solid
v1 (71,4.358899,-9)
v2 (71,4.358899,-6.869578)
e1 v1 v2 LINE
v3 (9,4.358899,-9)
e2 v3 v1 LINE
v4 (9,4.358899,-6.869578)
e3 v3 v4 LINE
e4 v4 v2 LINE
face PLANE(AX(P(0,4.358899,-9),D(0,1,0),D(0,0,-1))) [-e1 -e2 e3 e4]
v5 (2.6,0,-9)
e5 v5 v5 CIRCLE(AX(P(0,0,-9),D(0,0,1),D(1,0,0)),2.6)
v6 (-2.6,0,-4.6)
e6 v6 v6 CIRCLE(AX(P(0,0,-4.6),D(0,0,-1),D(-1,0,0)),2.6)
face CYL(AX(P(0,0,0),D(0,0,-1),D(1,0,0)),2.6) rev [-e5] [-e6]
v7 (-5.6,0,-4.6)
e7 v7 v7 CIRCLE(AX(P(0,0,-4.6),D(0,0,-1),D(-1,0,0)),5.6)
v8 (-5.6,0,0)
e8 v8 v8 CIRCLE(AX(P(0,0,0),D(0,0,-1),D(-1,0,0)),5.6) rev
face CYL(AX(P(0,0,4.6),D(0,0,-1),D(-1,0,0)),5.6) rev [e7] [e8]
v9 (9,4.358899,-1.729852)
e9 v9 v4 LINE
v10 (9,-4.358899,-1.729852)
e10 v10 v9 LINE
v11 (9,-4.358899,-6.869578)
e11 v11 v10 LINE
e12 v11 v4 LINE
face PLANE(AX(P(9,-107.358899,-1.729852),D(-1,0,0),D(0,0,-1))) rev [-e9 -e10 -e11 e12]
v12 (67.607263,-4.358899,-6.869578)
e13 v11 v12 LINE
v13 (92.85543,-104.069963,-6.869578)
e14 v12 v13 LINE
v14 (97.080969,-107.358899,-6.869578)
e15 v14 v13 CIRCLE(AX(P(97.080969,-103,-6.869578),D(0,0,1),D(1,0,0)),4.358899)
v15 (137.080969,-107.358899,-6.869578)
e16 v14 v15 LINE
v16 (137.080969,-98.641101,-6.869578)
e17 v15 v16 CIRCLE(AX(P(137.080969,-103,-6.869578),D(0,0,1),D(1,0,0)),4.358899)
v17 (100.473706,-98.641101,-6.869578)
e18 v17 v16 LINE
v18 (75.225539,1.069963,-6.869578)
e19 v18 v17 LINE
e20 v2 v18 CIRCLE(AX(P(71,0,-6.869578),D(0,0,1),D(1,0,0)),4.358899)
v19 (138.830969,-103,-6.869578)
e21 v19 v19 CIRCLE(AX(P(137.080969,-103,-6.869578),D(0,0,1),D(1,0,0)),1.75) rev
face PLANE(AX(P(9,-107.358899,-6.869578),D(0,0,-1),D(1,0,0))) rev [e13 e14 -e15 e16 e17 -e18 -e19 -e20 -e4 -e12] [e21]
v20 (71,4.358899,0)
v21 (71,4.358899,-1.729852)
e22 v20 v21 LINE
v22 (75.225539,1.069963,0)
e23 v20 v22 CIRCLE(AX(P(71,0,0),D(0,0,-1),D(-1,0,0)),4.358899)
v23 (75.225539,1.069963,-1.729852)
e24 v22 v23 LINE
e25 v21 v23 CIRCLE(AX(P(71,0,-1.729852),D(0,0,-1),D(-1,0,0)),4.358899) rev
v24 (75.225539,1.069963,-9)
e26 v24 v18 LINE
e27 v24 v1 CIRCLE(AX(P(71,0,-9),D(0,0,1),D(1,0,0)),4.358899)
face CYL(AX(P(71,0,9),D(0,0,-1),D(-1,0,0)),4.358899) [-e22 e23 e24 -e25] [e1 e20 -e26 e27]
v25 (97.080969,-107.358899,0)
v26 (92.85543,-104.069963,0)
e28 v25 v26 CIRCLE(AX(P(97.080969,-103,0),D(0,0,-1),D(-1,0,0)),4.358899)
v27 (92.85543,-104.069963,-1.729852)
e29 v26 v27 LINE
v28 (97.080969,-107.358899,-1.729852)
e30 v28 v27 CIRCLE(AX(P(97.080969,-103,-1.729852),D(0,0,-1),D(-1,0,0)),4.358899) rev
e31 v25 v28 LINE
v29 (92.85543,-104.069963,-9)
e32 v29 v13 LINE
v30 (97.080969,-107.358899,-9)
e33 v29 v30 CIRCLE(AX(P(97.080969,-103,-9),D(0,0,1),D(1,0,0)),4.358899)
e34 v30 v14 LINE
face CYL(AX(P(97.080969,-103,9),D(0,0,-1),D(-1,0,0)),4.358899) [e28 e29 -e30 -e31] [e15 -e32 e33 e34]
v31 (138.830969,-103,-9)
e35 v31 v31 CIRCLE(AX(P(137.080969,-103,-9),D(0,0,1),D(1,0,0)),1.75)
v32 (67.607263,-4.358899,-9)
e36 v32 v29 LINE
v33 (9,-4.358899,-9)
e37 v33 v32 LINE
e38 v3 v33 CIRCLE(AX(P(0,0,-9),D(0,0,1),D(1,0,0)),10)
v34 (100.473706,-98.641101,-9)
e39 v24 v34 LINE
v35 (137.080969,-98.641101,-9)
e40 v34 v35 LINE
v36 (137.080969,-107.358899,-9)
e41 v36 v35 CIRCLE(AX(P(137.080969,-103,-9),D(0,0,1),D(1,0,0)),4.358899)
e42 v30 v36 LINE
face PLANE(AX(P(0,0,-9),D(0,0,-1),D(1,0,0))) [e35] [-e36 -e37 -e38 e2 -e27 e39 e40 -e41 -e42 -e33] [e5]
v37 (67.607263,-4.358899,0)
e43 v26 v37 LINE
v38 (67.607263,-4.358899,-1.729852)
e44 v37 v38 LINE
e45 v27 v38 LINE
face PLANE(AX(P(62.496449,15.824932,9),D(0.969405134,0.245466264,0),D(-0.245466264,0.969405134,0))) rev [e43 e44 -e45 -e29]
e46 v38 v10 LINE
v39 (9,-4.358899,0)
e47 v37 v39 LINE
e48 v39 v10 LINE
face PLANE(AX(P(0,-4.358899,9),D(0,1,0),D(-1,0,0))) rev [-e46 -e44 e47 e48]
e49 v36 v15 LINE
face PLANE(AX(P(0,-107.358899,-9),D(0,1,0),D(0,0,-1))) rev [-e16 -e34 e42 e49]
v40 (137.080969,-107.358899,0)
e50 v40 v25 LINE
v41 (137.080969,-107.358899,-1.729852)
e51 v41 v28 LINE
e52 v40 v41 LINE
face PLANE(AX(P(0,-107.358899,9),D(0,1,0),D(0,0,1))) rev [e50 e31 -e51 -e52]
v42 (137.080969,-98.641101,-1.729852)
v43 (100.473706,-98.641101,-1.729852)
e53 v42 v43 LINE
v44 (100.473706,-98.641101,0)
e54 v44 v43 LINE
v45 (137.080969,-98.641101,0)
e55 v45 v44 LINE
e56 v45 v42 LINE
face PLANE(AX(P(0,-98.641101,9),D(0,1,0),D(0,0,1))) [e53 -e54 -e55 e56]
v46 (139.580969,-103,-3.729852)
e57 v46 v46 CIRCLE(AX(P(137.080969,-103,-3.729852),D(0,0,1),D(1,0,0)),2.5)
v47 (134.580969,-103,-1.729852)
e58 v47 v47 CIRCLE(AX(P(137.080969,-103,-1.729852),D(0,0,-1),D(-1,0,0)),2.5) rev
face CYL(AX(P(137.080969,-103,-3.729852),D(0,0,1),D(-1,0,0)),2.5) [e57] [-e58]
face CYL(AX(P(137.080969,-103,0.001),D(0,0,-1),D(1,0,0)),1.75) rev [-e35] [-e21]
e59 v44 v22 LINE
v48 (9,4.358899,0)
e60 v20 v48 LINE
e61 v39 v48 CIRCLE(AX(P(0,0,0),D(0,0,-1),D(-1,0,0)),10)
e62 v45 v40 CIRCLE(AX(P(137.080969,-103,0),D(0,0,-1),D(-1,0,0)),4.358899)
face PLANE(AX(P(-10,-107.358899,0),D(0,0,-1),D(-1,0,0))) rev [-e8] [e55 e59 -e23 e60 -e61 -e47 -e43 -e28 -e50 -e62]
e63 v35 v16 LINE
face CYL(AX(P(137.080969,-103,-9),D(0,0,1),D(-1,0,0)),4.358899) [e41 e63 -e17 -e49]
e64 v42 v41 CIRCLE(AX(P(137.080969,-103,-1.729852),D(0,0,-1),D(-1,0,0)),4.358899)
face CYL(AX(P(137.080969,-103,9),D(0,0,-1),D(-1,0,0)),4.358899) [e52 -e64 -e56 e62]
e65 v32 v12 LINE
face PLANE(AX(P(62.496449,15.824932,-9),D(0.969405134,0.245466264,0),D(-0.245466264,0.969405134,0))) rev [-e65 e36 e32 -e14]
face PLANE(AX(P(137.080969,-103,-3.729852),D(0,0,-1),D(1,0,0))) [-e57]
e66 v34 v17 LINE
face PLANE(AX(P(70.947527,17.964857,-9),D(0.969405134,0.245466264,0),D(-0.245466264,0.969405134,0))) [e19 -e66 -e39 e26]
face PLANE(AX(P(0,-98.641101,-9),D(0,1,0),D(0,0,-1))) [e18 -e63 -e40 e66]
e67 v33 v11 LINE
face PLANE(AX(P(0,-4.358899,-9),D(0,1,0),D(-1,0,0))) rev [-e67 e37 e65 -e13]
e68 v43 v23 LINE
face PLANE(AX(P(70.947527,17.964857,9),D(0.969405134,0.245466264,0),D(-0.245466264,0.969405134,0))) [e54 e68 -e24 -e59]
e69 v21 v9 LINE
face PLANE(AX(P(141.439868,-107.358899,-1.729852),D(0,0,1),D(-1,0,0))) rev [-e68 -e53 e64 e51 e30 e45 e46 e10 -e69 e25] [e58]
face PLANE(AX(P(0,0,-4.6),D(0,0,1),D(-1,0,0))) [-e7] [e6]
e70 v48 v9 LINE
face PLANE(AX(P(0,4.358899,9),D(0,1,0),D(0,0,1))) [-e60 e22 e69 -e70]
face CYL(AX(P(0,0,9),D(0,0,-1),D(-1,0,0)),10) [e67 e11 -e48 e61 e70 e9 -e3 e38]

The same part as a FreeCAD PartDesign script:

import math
import FreeCAD as App
import Part
import Sketcher


def add_polygon(sketch, points):
    """Adds a closed chain of lines whose ends are joined by coincident constraints."""
    first, n = sketch.GeometryCount, len(points)
    for a, b in zip(points, points[1:] + points[:1]):
        sketch.addGeometry(Part.LineSegment(App.Vector(*a, 0), App.Vector(*b, 0)), False)
    for i in range(n):
        sketch.addConstraint(Sketcher.Constraint("Coincident", first + i, 2, first + (i + 1) % n, 1))

doc = App.newDocument("Part")
params = doc.addObject("Spreadsheet::Sheet", "Params")
for row, (alias, value) in enumerate([
    ("sketch1_radius", "10 mm"),
    ("sketch1_width", "40 mm"),
    ("sketch1_width2", "62 mm"),
    ("pad1_length", "9 mm"),
    ("sketch2_diameter", "11.2 mm"),
    ("pocket1_length", "4.6 mm"),
    ("sketch3_diameter", "5.2 mm"),
    ("pad2_length", "7.270148 mm"),
    ("pad3_length", "7.270148 mm"),
    ("sketch7_diameter", "5 mm"),
    ("pad4_length", "2 mm"),
    ("sketch8_diameter", "3.5 mm"),
    ("sketch9_height", "9 mm"),
], start=1):
    params.set(f"A{row}", alias)
    params.set(f"B{row}", "=" + value)
    params.setAlias(f"B{row}", alias)

body = doc.addObject("PartDesign::Body", "Body")

# Sketch on XY plane
sketch1 = body.newObject("Sketcher::SketchObject", "Sketch")
sketch1.AttachmentSupport = (doc.getObject("XY_Plane"), [""])
sketch1.MapMode = "FlatFace"
sketch1.addGeometry(Part.LineSegment(App.Vector(97.1, -107.4, 0), App.Vector(137.1, -107.4, 0)), False)
sketch1.addGeometry(Part.ArcOfCircle(Part.Circle(App.Vector(137.1, -103, 0), App.Vector(0, 0, 1), 4.4), math.radians(-90), math.radians(90)), False)
sketch1.addGeometry(Part.LineSegment(App.Vector(137.1, -98.6, 0), App.Vector(100.5, -98.6, 0)), False)
sketch1.addGeometry(Part.LineSegment(App.Vector(100.5, -98.6, 0), App.Vector(75.2, 1.1, 0)), False)
sketch1.addGeometry(Part.ArcOfCircle(Part.Circle(App.Vector(71, 0, 0), App.Vector(0, 0, 1), 4.4), math.radians(14), math.radians(90)), False)
sketch1.addGeometry(Part.LineSegment(App.Vector(71, 4.4, 0), App.Vector(9, 4.4, 0)), False)
sketch1.addGeometry(Part.ArcOfCircle(Part.Circle(App.Vector(0, 0, 0), App.Vector(0, 0, 1), 10), math.radians(26), math.radians(334)), False)
sketch1.addGeometry(Part.LineSegment(App.Vector(9, -4.4, 0), App.Vector(67.6, -4.4, 0)), False)
sketch1.addGeometry(Part.LineSegment(App.Vector(67.6, -4.4, 0), App.Vector(92.9, -104.1, 0)), False)
sketch1.addGeometry(Part.ArcOfCircle(Part.Circle(App.Vector(97.1, -103, 0), App.Vector(0, 0, 1), 4.4), math.radians(-166), math.radians(-90)), False)
sketch1.addConstraint(Sketcher.Constraint("Tangent", 0, 2, 1, 1))
sketch1.addConstraint(Sketcher.Constraint("Tangent", 1, 2, 2, 1))
sketch1.addConstraint(Sketcher.Constraint("Coincident", 2, 2, 3, 1))
sketch1.addConstraint(Sketcher.Constraint("Tangent", 3, 2, 4, 1))
sketch1.addConstraint(Sketcher.Constraint("Tangent", 4, 2, 5, 1))
sketch1.addConstraint(Sketcher.Constraint("Coincident", 5, 2, 6, 1))
sketch1.addConstraint(Sketcher.Constraint("Coincident", 6, 2, 7, 1))
sketch1.addConstraint(Sketcher.Constraint("Coincident", 7, 2, 8, 1))
sketch1.addConstraint(Sketcher.Constraint("Tangent", 8, 2, 9, 1))
sketch1.addConstraint(Sketcher.Constraint("Tangent", 9, 2, 0, 1))
sketch1.addConstraint(Sketcher.Constraint("Horizontal", 0))
sketch1.addConstraint(Sketcher.Constraint("Horizontal", 2))
sketch1.addConstraint(Sketcher.Constraint("Horizontal", 5))
sketch1.addConstraint(Sketcher.Constraint("Horizontal", 7))
sketch1.addConstraint(Sketcher.Constraint("Coincident", 6, 3, -1, 1))
sketch1.addConstraint(Sketcher.Constraint("Equal", 1, 4))
sketch1.addConstraint(Sketcher.Constraint("Equal", 4, 9))
sketch1.addConstraint(Sketcher.Constraint("PointOnObject", 4, 3, -1))
sketch1.addConstraint(Sketcher.Constraint("Parallel", 3, 8))
sketch1.addConstraint(Sketcher.Constraint("Vertical", 5, 2, 6, 2))
sketch1.addConstraint(Sketcher.Constraint("Radius", 6, 10.0))
sketch1.addConstraint(Sketcher.Constraint("DistanceX", 0, 1, 0, 2, 40.0))
sketch1.addConstraint(Sketcher.Constraint("DistanceX", 5, 2, 5, 1, 62.0))
sketch1.addConstraint(Sketcher.Constraint("DistanceY", 1, 3, -1, 1, 103.0))
sketch1.addConstraint(Sketcher.Constraint("DistanceX", -1, 1, 4, 3, 71.0))
sketch1.addConstraint(Sketcher.Constraint("Distance", 3, 102.85799))
sketch1.addConstraint(Sketcher.Constraint("DistanceX", 2, 2, 2, 1, 36.607263))
sketch1.setExpression("Constraints[20]", "Params.sketch1_radius")
sketch1.setExpression("Constraints[21]", "Params.sketch1_width")
sketch1.setExpression("Constraints[22]", "Params.sketch1_width2")
pad1 = body.newObject("PartDesign::Pad", "Pad")
pad1.Profile = sketch1
pad1.setExpression("Length", "Params.pad1_length")

# Sketch on XY plane
sketch2 = body.newObject("Sketcher::SketchObject", "Sketch001")
sketch2.AttachmentSupport = (doc.getObject("XY_Plane"), [""])
sketch2.MapMode = "FlatFace"
sketch2.addGeometry(Part.Circle(App.Vector(0, 0, 0), App.Vector(0, 0, 1), 6), False)
sketch2.addConstraint(Sketcher.Constraint("Coincident", 0, 3, -1, 1))
sketch2.addConstraint(Sketcher.Constraint("Diameter", 0, 11.2))
sketch2.setExpression("Constraints[1]", "Params.sketch2_diameter")
pocket1 = body.newObject("PartDesign::Pocket", "Pocket")
pocket1.Profile = sketch2
pocket1.setExpression("Length", "Params.pocket1_length")
pocket1.Reversed = True

# Sketch on XY plane
sketch3 = body.newObject("Sketcher::SketchObject", "Sketch002")
sketch3.AttachmentSupport = (doc.getObject("XY_Plane"), [""])
sketch3.MapMode = "FlatFace"
sketch3.AttachmentOffset = App.Placement(App.Vector(0, 0, 9), App.Rotation())
sketch3.addGeometry(Part.Circle(App.Vector(0, 0, 0), App.Vector(0, 0, 1), 2.6), False)
sketch3.addConstraint(Sketcher.Constraint("Coincident", 0, 3, -1, 1))
sketch3.addConstraint(Sketcher.Constraint("Diameter", 0, 5.2))
sketch3.setExpression("Constraints[1]", "Params.sketch3_diameter")
pocket2 = body.newObject("PartDesign::Pocket", "Pocket001")
pocket2.Profile = sketch3
pocket2.Type = "ThroughAll"

# Sketch on XZ plane
sketch4 = body.newObject("Sketcher::SketchObject", "Sketch003")
sketch4.AttachmentSupport = (doc.getObject("XZ_Plane"), [""])
sketch4.MapMode = "FlatFace"
sketch4.AttachmentOffset = App.Placement(App.Vector(0, 0, -4.358899), App.Rotation())
add_polygon(sketch4, [(9, 2), (9, 7), (141, 7), (141, 2)])  # lines 0-3
sketch4.addConstraint(Sketcher.Constraint("Vertical", 0))
sketch4.addConstraint(Sketcher.Constraint("Horizontal", 1))
sketch4.addConstraint(Sketcher.Constraint("Vertical", 2))
sketch4.addConstraint(Sketcher.Constraint("Horizontal", 3))
sketch4.addConstraint(Sketcher.Constraint("DistanceX", -1, 1, 0, 2, 9.0))
sketch4.addConstraint(Sketcher.Constraint("DistanceX", 1, 1, 1, 2, 132.439868))
sketch4.addConstraint(Sketcher.Constraint("DistanceY", 0, 1, 0, 2, 5.139726))
sketch4.addConstraint(Sketcher.Constraint("DistanceY", -1, 1, 0, 2, 6.869578))
pocket3 = body.newObject("PartDesign::Pocket", "Pocket002")
pocket3.Profile = sketch4
pocket3.Type = "ThroughAll"
pocket3.Reversed = True

# Sketch on XY plane
sketch5 = body.newObject("Sketcher::SketchObject", "Sketch004")
sketch5.AttachmentSupport = (doc.getObject("XY_Plane"), [""])
sketch5.MapMode = "FlatFace"
sketch5.AttachmentOffset = App.Placement(App.Vector(0, 0, 1.729852), App.Rotation())
sketch5.addGeometry(Part.Circle(App.Vector(71, 0, 0), App.Vector(0, 0, 1), 4.4), False)
sketch5.addConstraint(Sketcher.Constraint("PointOnObject", 0, 3, -1))
sketch5.addConstraint(Sketcher.Constraint("DistanceX", -1, 1, 0, 3, 71.0))
sketch5.addConstraint(Sketcher.Constraint("Diameter", 0, 8.717798))
pad2 = body.newObject("PartDesign::Pad", "Pad001")
pad2.Profile = sketch5
pad2.setExpression("Length", "Params.pad2_length")

# Sketch on XY plane
sketch6 = body.newObject("Sketcher::SketchObject", "Sketch005")
sketch6.AttachmentSupport = (doc.getObject("XY_Plane"), [""])
sketch6.MapMode = "FlatFace"
sketch6.AttachmentOffset = App.Placement(App.Vector(0, 0, 1.729852), App.Rotation())
sketch6.addGeometry(Part.Circle(App.Vector(97.1, -103, 0), App.Vector(0, 0, 1), 4.4), False)
sketch6.addConstraint(Sketcher.Constraint("DistanceY", 0, 3, -1, 1, 103.0))
sketch6.addConstraint(Sketcher.Constraint("Diameter", 0, 8.717798))
sketch6.addConstraint(Sketcher.Constraint("DistanceX", -1, 1, 0, 3, 97.080969))
pad3 = body.newObject("PartDesign::Pad", "Pad002")
pad3.Profile = sketch6
pad3.setExpression("Length", "Params.pad3_length")

# Sketch on XY plane
sketch7 = body.newObject("Sketcher::SketchObject", "Sketch006")
sketch7.AttachmentSupport = (doc.getObject("XY_Plane"), [""])
sketch7.MapMode = "FlatFace"
sketch7.AttachmentOffset = App.Placement(App.Vector(0, 0, 1.729852), App.Rotation())
sketch7.addGeometry(Part.Circle(App.Vector(137.1, -103, 0), App.Vector(0, 0, 1), 2.5), False)
sketch7.addConstraint(Sketcher.Constraint("Diameter", 0, 5.0))
sketch7.addConstraint(Sketcher.Constraint("DistanceY", 0, 3, -1, 1, 103.0))
sketch7.addConstraint(Sketcher.Constraint("DistanceX", -1, 1, 0, 3, 137.080969))
sketch7.setExpression("Constraints[0]", "Params.sketch7_diameter")
pad4 = body.newObject("PartDesign::Pad", "Pad003")
pad4.Profile = sketch7
pad4.setExpression("Length", "Params.pad4_length")

# Sketch on XY plane
sketch8 = body.newObject("Sketcher::SketchObject", "Sketch007")
sketch8.AttachmentSupport = (doc.getObject("XY_Plane"), [""])
sketch8.MapMode = "FlatFace"
sketch8.AttachmentOffset = App.Placement(App.Vector(0, 0, 9), App.Rotation())
sketch8.addGeometry(Part.Circle(App.Vector(137.1, -103, 0), App.Vector(0, 0, 1), 1.8), False)
sketch8.addConstraint(Sketcher.Constraint("Diameter", 0, 3.5))
sketch8.addConstraint(Sketcher.Constraint("DistanceY", 0, 3, -1, 1, 103.0))
sketch8.addConstraint(Sketcher.Constraint("DistanceX", -1, 1, 0, 3, 137.080969))
sketch8.setExpression("Constraints[0]", "Params.sketch8_diameter")
pocket4 = body.newObject("PartDesign::Pocket", "Pocket003")
pocket4.Profile = sketch8
pocket4.Type = "UpToFirst"
body2 = doc.addObject("PartDesign::Body", "Body001")
doc.recompute()

body2.BaseFeature = body
doc.recompute()

mirroring = doc.addObject("Part::Mirroring", "Mirroring")
mirroring.Source = body
mirroring.Base = App.Vector(0, 0, 0)
mirroring.Normal = App.Vector(0, 0, 1)
body3 = doc.addObject("PartDesign::Body", "Body002")
body3.BaseFeature = mirroring
boolean = body2.newObject("PartDesign::Boolean", "Boolean")
boolean.Type = "Fuse"
boolean.addObjects([body3])
doc.recompute()

# Sketch on XZ plane
sketch9 = body2.newObject("Sketcher::SketchObject", "Sketch008")
sketch9.AttachmentSupport = (doc.getObject("XZ_Plane001"), [""])
sketch9.MapMode = "FlatFace"
sketch9.AttachmentOffset = App.Placement(App.Vector(0, 0, -4.358899), App.Rotation())
add_polygon(sketch9, [(-10, 0), (-10, 9), (141, 9), (141, 0)])  # lines 0-3
sketch9.addConstraint(Sketcher.Constraint("Vertical", 0))
sketch9.addConstraint(Sketcher.Constraint("Horizontal", 1))
sketch9.addConstraint(Sketcher.Constraint("Vertical", 2))
sketch9.addConstraint(Sketcher.Constraint("Horizontal", 3))
sketch9.addConstraint(Sketcher.Constraint("PointOnObject", 2, 2, -1))
sketch9.addConstraint(Sketcher.Constraint("DistanceY", 0, 1, 0, 2, 9.0))
sketch9.addConstraint(Sketcher.Constraint("DistanceX", 0, 2, -1, 1, 10.0))
sketch9.addConstraint(Sketcher.Constraint("DistanceX", 1, 1, 1, 2, 151.439868))
sketch9.setExpression("Constraints[9]", "Params.sketch9_height")
pocket5 = body2.newObject("PartDesign::Pocket", "Pocket004")
pocket5.Profile = sketch9
pocket5.Type = "ThroughAll"
pocket5.Midplane = True
mirroring.Visibility = False

doc.recompute()
